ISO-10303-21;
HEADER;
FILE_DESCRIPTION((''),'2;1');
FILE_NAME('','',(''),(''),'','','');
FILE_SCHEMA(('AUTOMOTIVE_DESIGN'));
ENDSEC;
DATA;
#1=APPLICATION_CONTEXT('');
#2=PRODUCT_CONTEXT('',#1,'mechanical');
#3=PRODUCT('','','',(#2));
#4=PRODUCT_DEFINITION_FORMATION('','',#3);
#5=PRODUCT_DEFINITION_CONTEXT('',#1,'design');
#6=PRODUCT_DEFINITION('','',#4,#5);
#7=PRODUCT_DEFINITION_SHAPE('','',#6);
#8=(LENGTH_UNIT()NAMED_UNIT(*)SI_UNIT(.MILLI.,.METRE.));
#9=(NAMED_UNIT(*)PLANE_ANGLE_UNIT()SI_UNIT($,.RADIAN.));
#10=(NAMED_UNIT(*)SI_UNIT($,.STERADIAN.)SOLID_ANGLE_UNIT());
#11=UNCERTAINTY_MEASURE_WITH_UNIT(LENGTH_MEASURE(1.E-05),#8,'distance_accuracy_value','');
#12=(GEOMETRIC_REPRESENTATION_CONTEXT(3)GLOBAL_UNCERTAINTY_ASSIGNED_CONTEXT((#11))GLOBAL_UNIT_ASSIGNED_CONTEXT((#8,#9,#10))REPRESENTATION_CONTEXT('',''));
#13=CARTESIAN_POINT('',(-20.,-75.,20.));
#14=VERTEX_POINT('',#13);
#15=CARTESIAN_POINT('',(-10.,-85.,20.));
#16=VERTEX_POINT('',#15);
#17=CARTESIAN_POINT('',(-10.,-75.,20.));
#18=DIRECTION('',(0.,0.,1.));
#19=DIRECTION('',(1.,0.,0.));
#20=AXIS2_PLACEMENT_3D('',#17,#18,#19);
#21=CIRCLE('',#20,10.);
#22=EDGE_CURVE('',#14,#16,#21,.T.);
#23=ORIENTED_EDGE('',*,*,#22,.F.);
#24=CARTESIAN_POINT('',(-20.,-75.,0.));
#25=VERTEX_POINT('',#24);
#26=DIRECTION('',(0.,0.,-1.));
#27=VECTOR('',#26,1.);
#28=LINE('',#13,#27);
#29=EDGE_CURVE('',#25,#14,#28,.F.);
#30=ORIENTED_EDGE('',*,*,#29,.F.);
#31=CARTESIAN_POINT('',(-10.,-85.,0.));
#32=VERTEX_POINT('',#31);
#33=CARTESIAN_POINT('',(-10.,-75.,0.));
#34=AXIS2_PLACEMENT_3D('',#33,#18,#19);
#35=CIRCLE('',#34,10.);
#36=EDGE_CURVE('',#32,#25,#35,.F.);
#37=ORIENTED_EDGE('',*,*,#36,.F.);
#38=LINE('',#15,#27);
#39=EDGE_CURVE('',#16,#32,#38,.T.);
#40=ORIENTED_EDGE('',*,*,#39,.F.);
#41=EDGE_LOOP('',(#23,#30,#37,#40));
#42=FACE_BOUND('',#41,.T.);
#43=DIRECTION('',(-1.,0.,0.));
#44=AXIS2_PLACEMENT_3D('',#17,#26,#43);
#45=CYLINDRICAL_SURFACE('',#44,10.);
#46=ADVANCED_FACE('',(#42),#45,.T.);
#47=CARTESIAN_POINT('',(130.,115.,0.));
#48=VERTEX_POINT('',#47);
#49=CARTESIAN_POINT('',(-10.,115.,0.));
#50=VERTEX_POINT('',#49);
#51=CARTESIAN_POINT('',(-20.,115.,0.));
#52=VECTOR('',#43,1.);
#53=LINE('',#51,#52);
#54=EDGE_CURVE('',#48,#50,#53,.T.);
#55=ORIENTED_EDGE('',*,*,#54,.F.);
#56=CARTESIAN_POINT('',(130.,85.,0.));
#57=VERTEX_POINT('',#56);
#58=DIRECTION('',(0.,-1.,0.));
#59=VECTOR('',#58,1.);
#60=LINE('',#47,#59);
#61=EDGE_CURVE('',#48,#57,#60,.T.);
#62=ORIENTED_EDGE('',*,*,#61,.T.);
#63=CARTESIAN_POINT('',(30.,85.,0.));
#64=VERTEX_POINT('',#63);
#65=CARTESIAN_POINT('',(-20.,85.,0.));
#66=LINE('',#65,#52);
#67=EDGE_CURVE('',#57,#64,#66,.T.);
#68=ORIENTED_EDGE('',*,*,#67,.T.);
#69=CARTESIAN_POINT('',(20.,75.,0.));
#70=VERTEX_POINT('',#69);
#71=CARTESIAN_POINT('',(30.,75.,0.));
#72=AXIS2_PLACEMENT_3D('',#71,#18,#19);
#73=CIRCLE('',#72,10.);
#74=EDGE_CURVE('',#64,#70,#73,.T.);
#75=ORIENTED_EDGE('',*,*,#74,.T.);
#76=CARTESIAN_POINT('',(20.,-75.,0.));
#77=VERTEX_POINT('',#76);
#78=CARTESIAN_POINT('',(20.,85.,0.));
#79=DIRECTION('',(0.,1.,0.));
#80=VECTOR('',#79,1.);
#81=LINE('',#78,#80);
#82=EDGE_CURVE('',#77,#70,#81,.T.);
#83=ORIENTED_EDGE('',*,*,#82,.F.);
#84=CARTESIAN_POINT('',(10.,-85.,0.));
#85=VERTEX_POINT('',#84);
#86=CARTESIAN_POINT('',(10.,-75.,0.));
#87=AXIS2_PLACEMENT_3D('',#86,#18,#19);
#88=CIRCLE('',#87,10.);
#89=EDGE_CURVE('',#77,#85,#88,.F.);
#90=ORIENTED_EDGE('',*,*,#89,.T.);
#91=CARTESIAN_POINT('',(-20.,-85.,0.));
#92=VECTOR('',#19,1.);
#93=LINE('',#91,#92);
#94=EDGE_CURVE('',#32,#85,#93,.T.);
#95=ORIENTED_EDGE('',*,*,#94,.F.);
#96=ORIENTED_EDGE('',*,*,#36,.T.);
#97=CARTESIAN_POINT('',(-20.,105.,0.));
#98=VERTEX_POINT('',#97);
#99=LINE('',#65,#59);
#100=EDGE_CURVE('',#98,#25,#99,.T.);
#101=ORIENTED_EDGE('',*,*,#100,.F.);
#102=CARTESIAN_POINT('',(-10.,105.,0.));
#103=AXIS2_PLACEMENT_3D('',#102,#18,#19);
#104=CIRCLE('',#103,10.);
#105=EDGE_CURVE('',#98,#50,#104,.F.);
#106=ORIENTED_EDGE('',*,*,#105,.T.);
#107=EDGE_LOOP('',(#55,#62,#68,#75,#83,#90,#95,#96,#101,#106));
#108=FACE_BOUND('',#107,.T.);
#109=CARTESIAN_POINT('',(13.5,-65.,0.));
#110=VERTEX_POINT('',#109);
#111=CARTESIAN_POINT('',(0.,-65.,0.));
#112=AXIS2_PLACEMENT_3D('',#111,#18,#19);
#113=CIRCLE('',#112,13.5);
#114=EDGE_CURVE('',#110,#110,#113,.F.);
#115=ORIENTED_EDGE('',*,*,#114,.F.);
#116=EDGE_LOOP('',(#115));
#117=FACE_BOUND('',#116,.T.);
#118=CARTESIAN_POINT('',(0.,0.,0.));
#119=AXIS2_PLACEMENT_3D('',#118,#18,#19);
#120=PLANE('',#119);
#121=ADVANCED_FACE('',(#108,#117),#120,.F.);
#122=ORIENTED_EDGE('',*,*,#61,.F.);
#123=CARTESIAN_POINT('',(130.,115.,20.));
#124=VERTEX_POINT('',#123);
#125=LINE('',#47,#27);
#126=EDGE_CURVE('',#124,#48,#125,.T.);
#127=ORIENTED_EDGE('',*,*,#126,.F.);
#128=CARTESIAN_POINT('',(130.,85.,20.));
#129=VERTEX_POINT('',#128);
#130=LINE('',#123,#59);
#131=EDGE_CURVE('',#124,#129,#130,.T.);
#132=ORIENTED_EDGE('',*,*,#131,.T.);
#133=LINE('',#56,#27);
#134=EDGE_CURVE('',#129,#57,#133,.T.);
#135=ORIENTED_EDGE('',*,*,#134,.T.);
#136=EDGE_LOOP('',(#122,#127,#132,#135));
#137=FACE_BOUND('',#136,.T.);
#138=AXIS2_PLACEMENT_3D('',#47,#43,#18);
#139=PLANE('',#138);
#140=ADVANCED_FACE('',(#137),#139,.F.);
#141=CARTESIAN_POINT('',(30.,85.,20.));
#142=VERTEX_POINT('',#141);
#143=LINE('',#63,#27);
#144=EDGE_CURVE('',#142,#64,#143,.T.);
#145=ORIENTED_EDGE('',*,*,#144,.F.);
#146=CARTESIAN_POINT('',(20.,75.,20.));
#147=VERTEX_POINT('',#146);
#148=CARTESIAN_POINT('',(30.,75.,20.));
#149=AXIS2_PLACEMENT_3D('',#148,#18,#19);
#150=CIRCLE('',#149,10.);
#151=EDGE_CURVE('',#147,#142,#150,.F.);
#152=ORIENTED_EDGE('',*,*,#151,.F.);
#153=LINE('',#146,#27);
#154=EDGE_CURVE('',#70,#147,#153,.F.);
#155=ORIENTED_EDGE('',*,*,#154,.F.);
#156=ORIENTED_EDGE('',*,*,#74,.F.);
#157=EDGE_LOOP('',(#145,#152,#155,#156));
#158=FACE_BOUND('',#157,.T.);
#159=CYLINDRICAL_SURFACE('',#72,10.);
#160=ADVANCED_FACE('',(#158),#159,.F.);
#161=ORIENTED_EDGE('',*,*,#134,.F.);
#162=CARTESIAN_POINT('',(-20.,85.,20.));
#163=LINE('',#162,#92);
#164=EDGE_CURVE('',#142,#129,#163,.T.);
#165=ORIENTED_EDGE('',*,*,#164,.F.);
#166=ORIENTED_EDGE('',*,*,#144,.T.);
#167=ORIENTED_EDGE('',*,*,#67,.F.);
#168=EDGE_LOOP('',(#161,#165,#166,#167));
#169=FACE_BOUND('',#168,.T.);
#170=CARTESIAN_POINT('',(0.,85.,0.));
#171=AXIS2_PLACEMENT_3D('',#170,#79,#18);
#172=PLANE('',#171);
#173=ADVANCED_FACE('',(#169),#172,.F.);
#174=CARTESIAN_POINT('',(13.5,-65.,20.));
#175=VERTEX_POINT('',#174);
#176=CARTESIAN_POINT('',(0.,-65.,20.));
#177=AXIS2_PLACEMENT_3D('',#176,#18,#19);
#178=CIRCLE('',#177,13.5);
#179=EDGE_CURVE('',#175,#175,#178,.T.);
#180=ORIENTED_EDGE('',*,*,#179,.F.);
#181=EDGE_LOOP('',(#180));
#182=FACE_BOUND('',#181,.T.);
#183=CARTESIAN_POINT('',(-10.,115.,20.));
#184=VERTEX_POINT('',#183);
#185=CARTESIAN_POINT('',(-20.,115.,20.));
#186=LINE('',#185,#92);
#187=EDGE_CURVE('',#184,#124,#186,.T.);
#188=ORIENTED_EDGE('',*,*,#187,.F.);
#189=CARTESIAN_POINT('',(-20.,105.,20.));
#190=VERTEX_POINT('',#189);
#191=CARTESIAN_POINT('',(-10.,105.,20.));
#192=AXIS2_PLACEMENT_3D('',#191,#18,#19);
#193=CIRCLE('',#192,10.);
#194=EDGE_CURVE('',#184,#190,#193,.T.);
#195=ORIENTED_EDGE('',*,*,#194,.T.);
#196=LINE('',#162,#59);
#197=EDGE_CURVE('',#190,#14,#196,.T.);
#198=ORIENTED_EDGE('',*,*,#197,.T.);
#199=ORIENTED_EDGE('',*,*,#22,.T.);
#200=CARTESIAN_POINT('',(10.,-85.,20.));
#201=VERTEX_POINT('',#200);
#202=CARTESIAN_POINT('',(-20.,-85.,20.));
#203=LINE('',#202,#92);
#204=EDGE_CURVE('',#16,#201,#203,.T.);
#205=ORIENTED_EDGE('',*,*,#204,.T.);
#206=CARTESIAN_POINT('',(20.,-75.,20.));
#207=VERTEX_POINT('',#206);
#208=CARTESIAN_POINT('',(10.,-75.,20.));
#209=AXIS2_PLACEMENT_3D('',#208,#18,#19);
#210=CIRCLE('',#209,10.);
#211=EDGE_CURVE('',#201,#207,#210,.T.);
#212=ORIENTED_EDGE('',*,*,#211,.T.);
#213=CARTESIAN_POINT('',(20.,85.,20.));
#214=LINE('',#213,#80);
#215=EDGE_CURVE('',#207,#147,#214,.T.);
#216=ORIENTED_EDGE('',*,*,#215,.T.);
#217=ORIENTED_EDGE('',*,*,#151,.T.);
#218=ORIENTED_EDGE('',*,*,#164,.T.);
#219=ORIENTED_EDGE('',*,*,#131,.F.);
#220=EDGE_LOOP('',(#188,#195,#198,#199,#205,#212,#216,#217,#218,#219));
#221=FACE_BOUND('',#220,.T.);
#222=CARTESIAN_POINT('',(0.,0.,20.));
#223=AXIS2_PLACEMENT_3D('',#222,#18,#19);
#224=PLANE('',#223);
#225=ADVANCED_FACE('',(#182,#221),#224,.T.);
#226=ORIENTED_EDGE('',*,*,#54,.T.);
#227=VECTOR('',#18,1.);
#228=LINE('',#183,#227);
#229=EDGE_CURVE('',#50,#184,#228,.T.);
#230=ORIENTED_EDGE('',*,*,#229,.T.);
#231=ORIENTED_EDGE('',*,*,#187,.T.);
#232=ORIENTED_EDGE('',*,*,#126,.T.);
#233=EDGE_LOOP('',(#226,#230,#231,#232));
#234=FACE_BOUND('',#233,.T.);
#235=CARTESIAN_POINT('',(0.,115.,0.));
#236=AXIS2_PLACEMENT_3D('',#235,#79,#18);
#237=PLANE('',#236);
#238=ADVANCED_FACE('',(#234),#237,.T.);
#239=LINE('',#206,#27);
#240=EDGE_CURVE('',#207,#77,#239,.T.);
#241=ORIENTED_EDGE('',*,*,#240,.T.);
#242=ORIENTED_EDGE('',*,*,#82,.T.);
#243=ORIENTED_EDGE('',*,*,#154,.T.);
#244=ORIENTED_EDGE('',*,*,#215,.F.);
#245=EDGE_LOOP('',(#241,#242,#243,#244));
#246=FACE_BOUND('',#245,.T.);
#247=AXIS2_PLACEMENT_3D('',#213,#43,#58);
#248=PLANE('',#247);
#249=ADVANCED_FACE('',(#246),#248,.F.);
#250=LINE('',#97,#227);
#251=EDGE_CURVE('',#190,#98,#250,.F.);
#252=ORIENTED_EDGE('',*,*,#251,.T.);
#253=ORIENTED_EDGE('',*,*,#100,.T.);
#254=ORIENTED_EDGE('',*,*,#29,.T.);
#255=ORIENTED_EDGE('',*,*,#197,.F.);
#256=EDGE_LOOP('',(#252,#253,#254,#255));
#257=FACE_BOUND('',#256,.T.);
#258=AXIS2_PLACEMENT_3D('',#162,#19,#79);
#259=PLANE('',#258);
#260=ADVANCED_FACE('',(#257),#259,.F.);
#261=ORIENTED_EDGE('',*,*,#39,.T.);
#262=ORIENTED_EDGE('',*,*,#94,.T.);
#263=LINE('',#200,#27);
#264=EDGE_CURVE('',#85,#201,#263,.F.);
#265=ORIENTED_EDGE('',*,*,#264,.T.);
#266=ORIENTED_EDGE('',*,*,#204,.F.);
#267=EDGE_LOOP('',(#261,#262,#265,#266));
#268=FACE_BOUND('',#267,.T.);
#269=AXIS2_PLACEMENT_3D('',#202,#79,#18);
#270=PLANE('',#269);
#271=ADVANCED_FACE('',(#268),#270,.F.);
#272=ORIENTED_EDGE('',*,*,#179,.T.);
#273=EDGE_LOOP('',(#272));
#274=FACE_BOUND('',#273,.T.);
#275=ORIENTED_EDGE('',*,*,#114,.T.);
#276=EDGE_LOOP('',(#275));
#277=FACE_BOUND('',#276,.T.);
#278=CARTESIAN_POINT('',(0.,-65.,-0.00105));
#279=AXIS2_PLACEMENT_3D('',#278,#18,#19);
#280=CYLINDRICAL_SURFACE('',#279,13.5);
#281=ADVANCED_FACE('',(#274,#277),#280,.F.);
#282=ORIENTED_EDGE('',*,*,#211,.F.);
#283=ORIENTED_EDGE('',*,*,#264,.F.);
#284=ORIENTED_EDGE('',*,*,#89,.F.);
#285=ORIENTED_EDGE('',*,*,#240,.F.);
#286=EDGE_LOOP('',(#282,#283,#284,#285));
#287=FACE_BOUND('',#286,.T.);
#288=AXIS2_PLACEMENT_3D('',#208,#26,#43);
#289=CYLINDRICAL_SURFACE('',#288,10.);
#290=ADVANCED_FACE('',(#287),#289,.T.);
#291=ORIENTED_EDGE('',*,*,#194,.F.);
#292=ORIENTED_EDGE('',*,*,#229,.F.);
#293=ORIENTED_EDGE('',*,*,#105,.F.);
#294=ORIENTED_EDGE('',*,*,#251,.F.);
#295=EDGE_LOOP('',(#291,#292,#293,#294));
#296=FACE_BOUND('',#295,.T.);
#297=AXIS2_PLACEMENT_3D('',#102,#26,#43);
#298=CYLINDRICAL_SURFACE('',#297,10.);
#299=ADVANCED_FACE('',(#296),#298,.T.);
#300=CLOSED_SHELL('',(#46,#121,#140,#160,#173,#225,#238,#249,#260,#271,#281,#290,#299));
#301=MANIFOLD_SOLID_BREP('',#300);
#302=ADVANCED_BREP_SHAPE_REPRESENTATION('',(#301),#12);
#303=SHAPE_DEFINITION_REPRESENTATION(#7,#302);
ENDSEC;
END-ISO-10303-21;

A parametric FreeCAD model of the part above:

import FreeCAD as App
import Part
import Sketcher

V = App.Vector
Q = App.Units.Quantity


def edges_at(feature, points):
    """Names of the edges that pass closest to the given points."""
    edges = feature.Shape.Edges
    near = lambda p: min(range(len(edges)), key=lambda i: edges[i].distToShape(Part.Vertex(*p))[0])
    return sorted({f"Edge{near(p) + 1}" for p in points})


def add_polygon(sketch, points):
    """Adds a closed chain of lines whose ends are joined by coincident constraints."""
    first, n = sketch.GeometryCount, len(points)
    for a, b in zip(points, points[1:] + points[:1]):
        sketch.addGeometry(Part.LineSegment(App.Vector(*a, 0), App.Vector(*b, 0)), False)
    for i in range(n):
        sketch.addConstraint(Sketcher.Constraint("Coincident", first + i, 2, first + (i + 1) % n, 1))

doc = App.newDocument("Part")
body = doc.addObject("PartDesign::Body", "Body")

sketch1 = doc.addObject("Sketcher::SketchObject", "Sketch")
body.addObject(sketch1)
sketch1.AttachmentSupport = (doc.XY_Plane, [""])
sketch1.MapMode = "FlatFace"
add_polygon(sketch1, [(-20, 85), (-20, -85), (20, -85), (20, 85)])
sketch1.addConstraint([
    Sketcher.Constraint("Vertical", 0),
    Sketcher.Constraint("Horizontal", 1),
    Sketcher.Constraint("Vertical", 2),
    Sketcher.Constraint("Horizontal", 3),
    Sketcher.Constraint("Symmetric", 0, 2, 2, 2, -1, 1),
    Sketcher.Constraint("DistanceX", 1, 1, 1, 2, Q("40 mm")),
    Sketcher.Constraint("DistanceY", 0, 2, 0, 1, Q("170 mm")),
])
pad1 = doc.addObject("PartDesign::Pad", "Pad")
body.addObject(pad1)
pad1.Profile = sketch1
pad1.Length = 20

sketch2 = doc.addObject("Sketcher::SketchObject", "Sketch001")
body.addObject(sketch2)
sketch2.AttachmentSupport = (doc.XZ_Plane, [""])
sketch2.MapMode = "FlatFace"
sketch2.AttachmentOffset = App.Placement(V(0, 0, -85), App.Rotation())
add_polygon(sketch2, [(-20, 0), (-20, 20), (130, 20), (130, 0)])
sketch2.addConstraint([
    Sketcher.Constraint("Vertical", 0),
    Sketcher.Constraint("Horizontal", 1),
    Sketcher.Constraint("Vertical", 2),
    Sketcher.Constraint("Horizontal", 3),
    Sketcher.Constraint("PointOnObject", 2, 2, -1),
    Sketcher.Constraint("DistanceX", 1, 1, 1, 2, Q("150 mm")),
    Sketcher.Constraint("DistanceY", 0, 1, 0, 2, Q("20 mm")),
    Sketcher.Constraint("DistanceX", 0, 2, -1, 1, Q("20 mm")),
])
pad2 = doc.addObject("PartDesign::Pad", "Pad001")
body.addObject(pad2)
pad2.Profile = sketch2
pad2.Length = 30
pad2.Reversed = True
doc.recompute()

fillet = doc.addObject("PartDesign::Fillet", "Fillet")
body.addObject(fillet)
fillet.Base = (pad2, edges_at(pad2, [(20, -85, 10), (-20, -85, 10), (-20, 115, 10)]))
fillet.Radius = 10

sketch3 = doc.addObject("Sketcher::SketchObject", "Sketch002")
body.addObject(sketch3)
sketch3.AttachmentSupport = (doc.XY_Plane, [""])
sketch3.MapMode = "FlatFace"
sketch3.AttachmentOffset = App.Placement(V(0, 0, 20), App.Rotation())
sketch3.addGeometry(Part.Circle(V(0, -65, 0), V(0, 0, 1), 14), False)
sketch3.addConstraint([
    Sketcher.Constraint("PointOnObject", 0, 3, -2),
    Sketcher.Constraint("Diameter", 0, Q("27 mm")),
    Sketcher.Constraint("DistanceY", 0, 3, -1, 1, Q("65 mm")),
])
pocket1 = doc.addObject("PartDesign::Pocket", "Pocket")
body.addObject(pocket1)
pocket1.Profile = sketch3
pocket1.Type = "UpToFirst"
doc.recompute()

fillet2 = doc.addObject("PartDesign::Fillet", "Fillet001")
body.addObject(fillet2)
fillet2.Base = (pocket1, edges_at(pocket1, [(20, 85, 10)]))
fillet2.Radius = 10

doc.recompute()
